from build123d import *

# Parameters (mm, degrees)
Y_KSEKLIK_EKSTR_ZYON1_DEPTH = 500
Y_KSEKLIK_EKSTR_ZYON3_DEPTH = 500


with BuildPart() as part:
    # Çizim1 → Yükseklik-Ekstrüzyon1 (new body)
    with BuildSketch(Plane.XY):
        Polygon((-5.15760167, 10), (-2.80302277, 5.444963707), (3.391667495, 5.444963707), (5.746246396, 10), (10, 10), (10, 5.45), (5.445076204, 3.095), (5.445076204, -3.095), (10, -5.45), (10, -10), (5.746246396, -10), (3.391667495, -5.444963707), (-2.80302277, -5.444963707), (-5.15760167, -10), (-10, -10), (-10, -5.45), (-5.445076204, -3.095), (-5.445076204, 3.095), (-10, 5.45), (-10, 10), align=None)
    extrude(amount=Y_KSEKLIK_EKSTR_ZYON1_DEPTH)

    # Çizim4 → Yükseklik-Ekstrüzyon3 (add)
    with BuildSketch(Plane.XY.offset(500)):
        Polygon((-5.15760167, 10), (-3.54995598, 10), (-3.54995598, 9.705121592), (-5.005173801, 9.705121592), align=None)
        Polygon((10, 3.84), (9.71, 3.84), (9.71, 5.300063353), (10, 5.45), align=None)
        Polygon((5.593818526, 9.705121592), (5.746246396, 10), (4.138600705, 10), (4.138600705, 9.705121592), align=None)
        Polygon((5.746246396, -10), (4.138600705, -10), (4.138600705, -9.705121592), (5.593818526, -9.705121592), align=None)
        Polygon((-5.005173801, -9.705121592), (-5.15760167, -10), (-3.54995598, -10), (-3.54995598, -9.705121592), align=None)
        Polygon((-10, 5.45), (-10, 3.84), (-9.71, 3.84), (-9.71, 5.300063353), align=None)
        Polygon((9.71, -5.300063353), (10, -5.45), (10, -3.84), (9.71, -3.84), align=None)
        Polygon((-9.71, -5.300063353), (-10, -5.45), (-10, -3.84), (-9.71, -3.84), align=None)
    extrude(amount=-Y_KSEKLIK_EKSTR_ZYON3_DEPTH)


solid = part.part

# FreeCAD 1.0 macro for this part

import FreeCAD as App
import Part
import Sketcher
from FreeCAD import Vector
Q = App.Units.Quantity

doc = App.newDocument("Part")
body = doc.addObject("PartDesign::Body", "Body")

# Sketch on XY plane
sketch1 = body.newObject("Sketcher::SketchObject", "Sketch")
sketch1.AttachmentSupport = (doc.getObject("XY_Plane"), [""])
sketch1.MapMode = "FlatFace"
sketch1.addGeometry([
    Part.LineSegment(Vector(-2.8, 5.4, 0), Vector(-5.2, 10, 0)),  # 0
    Part.LineSegment(Vector(-5.2, 10, 0), Vector(-10, 10, 0)),  # 1
    Part.LineSegment(Vector(-10, 10, 0), Vector(-10, 5.5, 0)),  # 2
    Part.LineSegment(Vector(-10, 5.5, 0), Vector(-5.4, 3.1, 0)),  # 3
    Part.LineSegment(Vector(-5.4, 3.1, 0), Vector(-5.4, -3.1, 0)),  # 4
    Part.LineSegment(Vector(-5.4, -3.1, 0), Vector(-10, -5.5, 0)),  # 5
    Part.LineSegment(Vector(-10, -5.5, 0), Vector(-10, -10, 0)),  # 6
    Part.LineSegment(Vector(-10, -10, 0), Vector(-5.2, -10, 0)),  # 7
    Part.LineSegment(Vector(-5.2, -10, 0), Vector(-2.8, -5.4, 0)),  # 8
    Part.LineSegment(Vector(-2.8, -5.4, 0), Vector(3.4, -5.4, 0)),  # 9
    Part.LineSegment(Vector(3.4, -5.4, 0), Vector(5.7, -10, 0)),  # 10
    Part.LineSegment(Vector(5.7, -10, 0), Vector(10, -10, 0)),  # 11
    Part.LineSegment(Vector(10, -10, 0), Vector(10, -5.5, 0)),  # 12
    Part.LineSegment(Vector(10, -5.5, 0), Vector(5.4, -3.1, 0)),  # 13
    Part.LineSegment(Vector(5.4, -3.1, 0), Vector(5.4, 3.1, 0)),  # 14
    Part.LineSegment(Vector(5.4, 3.1, 0), Vector(10, 5.5, 0)),  # 15
    Part.LineSegment(Vector(10, 5.5, 0), Vector(10, 10, 0)),  # 16
    Part.LineSegment(Vector(10, 10, 0), Vector(5.7, 10, 0)),  # 17
    Part.LineSegment(Vector(5.7, 10, 0), Vector(3.4, 5.4, 0)),  # 18
    Part.LineSegment(Vector(3.4, 5.4, 0), Vector(-2.8, 5.4, 0)),  # 19
], False)
sketch1.addConstraint([
    Sketcher.Constraint("Coincident", 0, 2, 1, 1),
    Sketcher.Constraint("Coincident", 1, 2, 2, 1),
    Sketcher.Constraint("Coincident", 2, 2, 3, 1),
    Sketcher.Constraint("Coincident", 3, 2, 4, 1),
    Sketcher.Constraint("Coincident", 4, 2, 5, 1),
    Sketcher.Constraint("Coincident", 5, 2, 6, 1),
    Sketcher.Constraint("Coincident", 6, 2, 7, 1),
    Sketcher.Constraint("Coincident", 7, 2, 8, 1),
    Sketcher.Constraint("Coincident", 8, 2, 9, 1),
    Sketcher.Constraint("Coincident", 9, 2, 10, 1),
    Sketcher.Constraint("Coincident", 10, 2, 11, 1),
    Sketcher.Constraint("Coincident", 11, 2, 12, 1),
    Sketcher.Constraint("Coincident", 12, 2, 13, 1),
    Sketcher.Constraint("Coincident", 13, 2, 14, 1),
    Sketcher.Constraint("Coincident", 14, 2, 15, 1),
    Sketcher.Constraint("Coincident", 15, 2, 16, 1),
    Sketcher.Constraint("Coincident", 16, 2, 17, 1),
    Sketcher.Constraint("Coincident", 17, 2, 18, 1),
    Sketcher.Constraint("Coincident", 18, 2, 19, 1),
    Sketcher.Constraint("Coincident", 19, 2, 0, 1),
    Sketcher.Constraint("Horizontal", 1),
    Sketcher.Constraint("Vertical", 2),
    Sketcher.Constraint("Vertical", 4),
    Sketcher.Constraint("Vertical", 6),
    Sketcher.Constraint("Horizontal", 7),
    Sketcher.Constraint("Horizontal", 9),
    Sketcher.Constraint("Horizontal", 11),
    Sketcher.Constraint("Vertical", 12),
    Sketcher.Constraint("Vertical", 14),
    Sketcher.Constraint("Vertical", 16),
    Sketcher.Constraint("Horizontal", 17),
    Sketcher.Constraint("Horizontal", 19),
    Sketcher.Constraint("Symmetric", 1, 2, 11, 2, -1, 1),
    Sketcher.Constraint("Symmetric", 3, 2, 13, 2, -1, 1),
    Sketcher.Constraint("Symmetric", 5, 2, 15, 2, -1, 1),
    Sketcher.Constraint("Symmetric", 6, 2, 11, 2, -2),
    Sketcher.Constraint("Symmetric", 10, 2, 17, 2, -1),
    Sketcher.Constraint("Symmetric", 9, 2, 18, 2, -1),
    Sketcher.Constraint("Parallel", 0, 10),
    Sketcher.Constraint("Parallel", 3, 13),
    Sketcher.Constraint("Parallel", 5, 15),
    Sketcher.Constraint("Parallel", 8, 18),
    Sketcher.Constraint("Horizontal", 5, 2, 12, 2),
    Sketcher.Constraint("Horizontal", 4, 2, 13, 2),
    Sketcher.Constraint("Vertical", 0, 2, 7, 2),
    Sketcher.Constraint("DistanceY", -1, 1, 0, 2, Q("10 mm")),
    Sketcher.Constraint("DistanceX", 1, 2, -1, 1, Q("10 mm")),
    Sketcher.Constraint("DistanceY", 2, 2, 2, 1, Q("4.55 mm")),
    Sketcher.Constraint("DistanceY", 4, 2, 4, 1, Q("6.19 mm")),
    Sketcher.Constraint("Angle", 3, Q("-27.34 deg")),
    Sketcher.Constraint("DistanceX", 1, 2, 1, 1, Q("4.842398 mm")),
    Sketcher.Constraint("DistanceX", 9, 1, 9, 2, Q("6.19469 mm")),
    Sketcher.Constraint("DistanceX", 8, 2, 13, 2, Q("8.248099 mm")),
    Sketcher.Constraint("Distance", 0, Q("5.127611 mm")),
])
pad1 = body.newObject("PartDesign::Pad", "Pad")
pad1.Profile = sketch1
pad1.Length = 500

# Sketch on XY plane
sketch2 = body.newObject("Sketcher::SketchObject", "Sketch001")
sketch2.AttachmentSupport = (doc.getObject("XY_Plane"), [""])
sketch2.MapMode = "FlatFace"
sketch2.AttachmentOffset = App.Placement(Vector(0, 0, 500), App.Rotation())
sketch2.addGeometry([
    Part.LineSegment(Vector(-3.55, 10, 0), Vector(-5.16, 10, 0)),  # 0
    Part.LineSegment(Vector(-5.16, 10, 0), Vector(-5.01, 9.71, 0)),  # 1
    Part.LineSegment(Vector(-5.01, 9.71, 0), Vector(-3.55, 9.71, 0)),  # 2
    Part.LineSegment(Vector(-3.55, 9.71, 0), Vector(-3.55, 10, 0)),  # 3
    Part.LineSegment(Vector(9.71, 3.84, 0), Vector(10, 3.84, 0)),  # 4
    Part.LineSegment(Vector(10, 3.84, 0), Vector(10, 5.45, 0)),  # 5
    Part.LineSegment(Vector(10, 5.45, 0), Vector(9.71, 5.3, 0)),  # 6
    Part.LineSegment(Vector(9.71, 5.3, 0), Vector(9.71, 3.84, 0)),  # 7
    Part.LineSegment(Vector(5.59, 9.71, 0), Vector(5.75, 10, 0)),  # 8
    Part.LineSegment(Vector(5.75, 10, 0), Vector(4.14, 10, 0)),  # 9
    Part.LineSegment(Vector(4.14, 10, 0), Vector(4.14, 9.71, 0)),  # 10
    Part.LineSegment(Vector(4.14, 9.71, 0), Vector(5.59, 9.71, 0)),  # 11
    Part.LineSegment(Vector(4.14, -10, 0), Vector(5.75, -10, 0)),  # 12
    Part.LineSegment(Vector(5.75, -10, 0), Vector(5.59, -9.71, 0)),  # 13
    Part.LineSegment(Vector(5.59, -9.71, 0), Vector(4.14, -9.71, 0)),  # 14
    Part.LineSegment(Vector(4.14, -9.71, 0), Vector(4.14, -10, 0)),  # 15
    Part.LineSegment(Vector(-5.01, -9.71, 0), Vector(-5.16, -10, 0)),  # 16
    Part.LineSegment(Vector(-5.16, -10, 0), Vector(-3.55, -10, 0)),  # 17
    Part.LineSegment(Vector(-3.55, -10, 0), Vector(-3.55, -9.71, 0)),  # 18
    Part.LineSegment(Vector(-3.55, -9.71, 0), Vector(-5.01, -9.71, 0)),  # 19
    Part.LineSegment(Vector(-10, 5.45, 0), Vector(-10, 3.84, 0)),  # 20
    Part.LineSegment(Vector(-10, 3.84, 0), Vector(-9.71, 3.84, 0)),  # 21
    Part.LineSegment(Vector(-9.71, 3.84, 0), Vector(-9.71, 5.3, 0)),  # 22
    Part.LineSegment(Vector(-9.71, 5.3, 0), Vector(-10, 5.45, 0)),  # 23
    Part.LineSegment(Vector(9.71, -5.3, 0), Vector(10, -5.45, 0)),  # 24
    Part.LineSegment(Vector(10, -5.45, 0), Vector(10, -3.84, 0)),  # 25
    Part.LineSegment(Vector(10, -3.84, 0), Vector(9.71, -3.84, 0)),  # 26
    Part.LineSegment(Vector(9.71, -3.84, 0), Vector(9.71, -5.3, 0)),  # 27
    Part.LineSegment(Vector(-10, -5.45, 0), Vector(-9.71, -5.3, 0)),  # 28
    Part.LineSegment(Vector(-9.71, -5.3, 0), Vector(-9.71, -3.84, 0)),  # 29
    Part.LineSegment(Vector(-9.71, -3.84, 0), Vector(-10, -3.84, 0)),  # 30
    Part.LineSegment(Vector(-10, -3.84, 0), Vector(-10, -5.45, 0)),  # 31
], False)
sketch2.addConstraint([
    Sketcher.Constraint("Coincident", 0, 2, 1, 1),
    Sketcher.Constraint("Coincident", 1, 2, 2, 1),
    Sketcher.Constraint("Coincident", 2, 2, 3, 1),
    Sketcher.Constraint("Coincident", 3, 2, 0, 1),
    Sketcher.Constraint("Coincident", 4, 2, 5, 1),
    Sketcher.Constraint("Coincident", 5, 2, 6, 1),
    Sketcher.Constraint("Coincident", 6, 2, 7, 1),
    Sketcher.Constraint("Coincident", 7, 2, 4, 1),
    Sketcher.Constraint("Coincident", 8, 2, 9, 1),
    Sketcher.Constraint("Coincident", 9, 2, 10, 1),
    Sketcher.Constraint("Coincident", 10, 2, 11, 1),
    Sketcher.Constraint("Coincident", 11, 2, 8, 1),
    Sketcher.Constraint("Coincident", 12, 2, 13, 1),
    Sketcher.Constraint("Coincident", 13, 2, 14, 1),
    Sketcher.Constraint("Coincident", 14, 2, 15, 1),
    Sketcher.Constraint("Coincident", 15, 2, 12, 1),
    Sketcher.Constraint("Coincident", 16, 2, 17, 1),
    Sketcher.Constraint("Coincident", 17, 2, 18, 1),
    Sketcher.Constraint("Coincident", 18, 2, 19, 1),
    Sketcher.Constraint("Coincident", 19, 2, 16, 1),
    Sketcher.Constraint("Coincident", 20, 2, 21, 1),
    Sketcher.Constraint("Coincident", 21, 2, 22, 1),
    Sketcher.Constraint("Coincident", 22, 2, 23, 1),
    Sketcher.Constraint("Coincident", 23, 2, 20, 1),
    Sketcher.Constraint("Coincident", 24, 2, 25, 1),
    Sketcher.Constraint("Coincident", 25, 2, 26, 1),
    Sketcher.Constraint("Coincident", 26, 2, 27, 1),
    Sketcher.Constraint("Coincident", 27, 2, 24, 1),
    Sketcher.Constraint("Coincident", 28, 2, 29, 1),
    Sketcher.Constraint("Coincident", 29, 2, 30, 1),
    Sketcher.Constraint("Coincident", 30, 2, 31, 1),
    Sketcher.Constraint("Coincident", 31, 2, 28, 1),
    Sketcher.Constraint("Horizontal", 0),
    Sketcher.Constraint("Horizontal", 2),
    Sketcher.Constraint("Vertical", 3),
    Sketcher.Constraint("Horizontal", 4),
    Sketcher.Constraint("Vertical", 5),
    Sketcher.Constraint("Vertical", 7),
    Sketcher.Constraint("Horizontal", 9),
    Sketcher.Constraint("Vertical", 10),
    Sketcher.Constraint("Horizontal", 11),
    Sketcher.Constraint("Horizontal", 12),
    Sketcher.Constraint("Horizontal", 14),
    Sketcher.Constraint("Vertical", 15),
    Sketcher.Constraint("Horizontal", 17),
    Sketcher.Constraint("Vertical", 18),
    Sketcher.Constraint("Horizontal", 19),
    Sketcher.Constraint("Vertical", 20),
    Sketcher.Constraint("Horizontal", 21),
    Sketcher.Constraint("Vertical", 22),
    Sketcher.Constraint("Vertical", 25),
    Sketcher.Constraint("Horizontal", 26),
    Sketcher.Constraint("Vertical", 27),
    Sketcher.Constraint("Vertical", 29),
    Sketcher.Constraint("Horizontal", 30),
    Sketcher.Constraint("Vertical", 31),
    Sketcher.Constraint("Symmetric", 23, 2, 24, 2, -1, 1),
    Sketcher.Constraint("Symmetric", 21, 2, 26, 2, -1, 1),
    Sketcher.Constraint("Symmetric", 6, 2, 28, 2, -1, 1),
    Sketcher.Constraint("Symmetric", 4, 2, 30, 2, -1, 1),
    Sketcher.Constraint("Symmetric", 4, 2, 20, 2, -2),
    Sketcher.Constraint("Symmetric", 6, 2, 22, 2, -2),
    Sketcher.Constraint("Symmetric", 8, 2, 12, 2, -1),
    Sketcher.Constraint("Symmetric", 11, 2, 13, 2, -1),
    Sketcher.Constraint("Symmetric", 0, 2, 16, 2, -1),
    Sketcher.Constraint("Symmetric", 2, 2, 18, 2, -1),
    Sketcher.Constraint("Parallel", 1, 13),
    Sketcher.Constraint("Parallel", 8, 16),
    Sketcher.Constraint("Parallel", 23, 24),
    Sketcher.Constraint("Parallel", 6, 28),
    Sketcher.Constraint("Horizontal", 3, 2, 8, 2),
    Sketcher.Constraint("Horizontal", 2, 2, 10, 2),
    Sketcher.Constraint("Horizontal", 5, 2, 23, 2),
    Sketcher.Constraint("Vertical", 10, 2, 14, 2),
    Sketcher.Constraint("Equal", 0, 9),
    Sketcher.Constraint("DistanceY", -1, 1, 0, 2, Q("10 mm")),
    Sketcher.Constraint("DistanceX", -1, 1, 4, 2, Q("10 mm")),
    Sketcher.Constraint("DistanceX", 4, 1, 4, 2, Q("0.29 mm")),
    Sketcher.Constraint("DistanceY", 5, 1, 5, 2, Q("1.61 mm")),
    Sketcher.Constraint("Angle", 6, Q("-152.66 deg")),
    Sketcher.Constraint("DistanceY", -1, 1, 4, 2, Q("3.84 mm")),
    Sketcher.Constraint("DistanceY", 3, 1, 3, 2, Q("0.294878 mm")),
    Sketcher.Constraint("DistanceX", 0, 2, -1, 1, Q("5.157602 mm")),
    Sketcher.Constraint("DistanceX", -1, 1, 9, 2, Q("4.138601 mm")),
    Sketcher.Constraint("DistanceX", 0, 2, 0, 1, Q("1.607646 mm")),
    Sketcher.Constraint("DistanceX", 2, 1, 2, 2, Q("1.455218 mm")),
])
pad2 = body.newObject("PartDesign::Pad", "Pad001")
pad2.Profile = sketch2
pad2.Length = 500
pad2.Reversed = True

doc.recompute()
